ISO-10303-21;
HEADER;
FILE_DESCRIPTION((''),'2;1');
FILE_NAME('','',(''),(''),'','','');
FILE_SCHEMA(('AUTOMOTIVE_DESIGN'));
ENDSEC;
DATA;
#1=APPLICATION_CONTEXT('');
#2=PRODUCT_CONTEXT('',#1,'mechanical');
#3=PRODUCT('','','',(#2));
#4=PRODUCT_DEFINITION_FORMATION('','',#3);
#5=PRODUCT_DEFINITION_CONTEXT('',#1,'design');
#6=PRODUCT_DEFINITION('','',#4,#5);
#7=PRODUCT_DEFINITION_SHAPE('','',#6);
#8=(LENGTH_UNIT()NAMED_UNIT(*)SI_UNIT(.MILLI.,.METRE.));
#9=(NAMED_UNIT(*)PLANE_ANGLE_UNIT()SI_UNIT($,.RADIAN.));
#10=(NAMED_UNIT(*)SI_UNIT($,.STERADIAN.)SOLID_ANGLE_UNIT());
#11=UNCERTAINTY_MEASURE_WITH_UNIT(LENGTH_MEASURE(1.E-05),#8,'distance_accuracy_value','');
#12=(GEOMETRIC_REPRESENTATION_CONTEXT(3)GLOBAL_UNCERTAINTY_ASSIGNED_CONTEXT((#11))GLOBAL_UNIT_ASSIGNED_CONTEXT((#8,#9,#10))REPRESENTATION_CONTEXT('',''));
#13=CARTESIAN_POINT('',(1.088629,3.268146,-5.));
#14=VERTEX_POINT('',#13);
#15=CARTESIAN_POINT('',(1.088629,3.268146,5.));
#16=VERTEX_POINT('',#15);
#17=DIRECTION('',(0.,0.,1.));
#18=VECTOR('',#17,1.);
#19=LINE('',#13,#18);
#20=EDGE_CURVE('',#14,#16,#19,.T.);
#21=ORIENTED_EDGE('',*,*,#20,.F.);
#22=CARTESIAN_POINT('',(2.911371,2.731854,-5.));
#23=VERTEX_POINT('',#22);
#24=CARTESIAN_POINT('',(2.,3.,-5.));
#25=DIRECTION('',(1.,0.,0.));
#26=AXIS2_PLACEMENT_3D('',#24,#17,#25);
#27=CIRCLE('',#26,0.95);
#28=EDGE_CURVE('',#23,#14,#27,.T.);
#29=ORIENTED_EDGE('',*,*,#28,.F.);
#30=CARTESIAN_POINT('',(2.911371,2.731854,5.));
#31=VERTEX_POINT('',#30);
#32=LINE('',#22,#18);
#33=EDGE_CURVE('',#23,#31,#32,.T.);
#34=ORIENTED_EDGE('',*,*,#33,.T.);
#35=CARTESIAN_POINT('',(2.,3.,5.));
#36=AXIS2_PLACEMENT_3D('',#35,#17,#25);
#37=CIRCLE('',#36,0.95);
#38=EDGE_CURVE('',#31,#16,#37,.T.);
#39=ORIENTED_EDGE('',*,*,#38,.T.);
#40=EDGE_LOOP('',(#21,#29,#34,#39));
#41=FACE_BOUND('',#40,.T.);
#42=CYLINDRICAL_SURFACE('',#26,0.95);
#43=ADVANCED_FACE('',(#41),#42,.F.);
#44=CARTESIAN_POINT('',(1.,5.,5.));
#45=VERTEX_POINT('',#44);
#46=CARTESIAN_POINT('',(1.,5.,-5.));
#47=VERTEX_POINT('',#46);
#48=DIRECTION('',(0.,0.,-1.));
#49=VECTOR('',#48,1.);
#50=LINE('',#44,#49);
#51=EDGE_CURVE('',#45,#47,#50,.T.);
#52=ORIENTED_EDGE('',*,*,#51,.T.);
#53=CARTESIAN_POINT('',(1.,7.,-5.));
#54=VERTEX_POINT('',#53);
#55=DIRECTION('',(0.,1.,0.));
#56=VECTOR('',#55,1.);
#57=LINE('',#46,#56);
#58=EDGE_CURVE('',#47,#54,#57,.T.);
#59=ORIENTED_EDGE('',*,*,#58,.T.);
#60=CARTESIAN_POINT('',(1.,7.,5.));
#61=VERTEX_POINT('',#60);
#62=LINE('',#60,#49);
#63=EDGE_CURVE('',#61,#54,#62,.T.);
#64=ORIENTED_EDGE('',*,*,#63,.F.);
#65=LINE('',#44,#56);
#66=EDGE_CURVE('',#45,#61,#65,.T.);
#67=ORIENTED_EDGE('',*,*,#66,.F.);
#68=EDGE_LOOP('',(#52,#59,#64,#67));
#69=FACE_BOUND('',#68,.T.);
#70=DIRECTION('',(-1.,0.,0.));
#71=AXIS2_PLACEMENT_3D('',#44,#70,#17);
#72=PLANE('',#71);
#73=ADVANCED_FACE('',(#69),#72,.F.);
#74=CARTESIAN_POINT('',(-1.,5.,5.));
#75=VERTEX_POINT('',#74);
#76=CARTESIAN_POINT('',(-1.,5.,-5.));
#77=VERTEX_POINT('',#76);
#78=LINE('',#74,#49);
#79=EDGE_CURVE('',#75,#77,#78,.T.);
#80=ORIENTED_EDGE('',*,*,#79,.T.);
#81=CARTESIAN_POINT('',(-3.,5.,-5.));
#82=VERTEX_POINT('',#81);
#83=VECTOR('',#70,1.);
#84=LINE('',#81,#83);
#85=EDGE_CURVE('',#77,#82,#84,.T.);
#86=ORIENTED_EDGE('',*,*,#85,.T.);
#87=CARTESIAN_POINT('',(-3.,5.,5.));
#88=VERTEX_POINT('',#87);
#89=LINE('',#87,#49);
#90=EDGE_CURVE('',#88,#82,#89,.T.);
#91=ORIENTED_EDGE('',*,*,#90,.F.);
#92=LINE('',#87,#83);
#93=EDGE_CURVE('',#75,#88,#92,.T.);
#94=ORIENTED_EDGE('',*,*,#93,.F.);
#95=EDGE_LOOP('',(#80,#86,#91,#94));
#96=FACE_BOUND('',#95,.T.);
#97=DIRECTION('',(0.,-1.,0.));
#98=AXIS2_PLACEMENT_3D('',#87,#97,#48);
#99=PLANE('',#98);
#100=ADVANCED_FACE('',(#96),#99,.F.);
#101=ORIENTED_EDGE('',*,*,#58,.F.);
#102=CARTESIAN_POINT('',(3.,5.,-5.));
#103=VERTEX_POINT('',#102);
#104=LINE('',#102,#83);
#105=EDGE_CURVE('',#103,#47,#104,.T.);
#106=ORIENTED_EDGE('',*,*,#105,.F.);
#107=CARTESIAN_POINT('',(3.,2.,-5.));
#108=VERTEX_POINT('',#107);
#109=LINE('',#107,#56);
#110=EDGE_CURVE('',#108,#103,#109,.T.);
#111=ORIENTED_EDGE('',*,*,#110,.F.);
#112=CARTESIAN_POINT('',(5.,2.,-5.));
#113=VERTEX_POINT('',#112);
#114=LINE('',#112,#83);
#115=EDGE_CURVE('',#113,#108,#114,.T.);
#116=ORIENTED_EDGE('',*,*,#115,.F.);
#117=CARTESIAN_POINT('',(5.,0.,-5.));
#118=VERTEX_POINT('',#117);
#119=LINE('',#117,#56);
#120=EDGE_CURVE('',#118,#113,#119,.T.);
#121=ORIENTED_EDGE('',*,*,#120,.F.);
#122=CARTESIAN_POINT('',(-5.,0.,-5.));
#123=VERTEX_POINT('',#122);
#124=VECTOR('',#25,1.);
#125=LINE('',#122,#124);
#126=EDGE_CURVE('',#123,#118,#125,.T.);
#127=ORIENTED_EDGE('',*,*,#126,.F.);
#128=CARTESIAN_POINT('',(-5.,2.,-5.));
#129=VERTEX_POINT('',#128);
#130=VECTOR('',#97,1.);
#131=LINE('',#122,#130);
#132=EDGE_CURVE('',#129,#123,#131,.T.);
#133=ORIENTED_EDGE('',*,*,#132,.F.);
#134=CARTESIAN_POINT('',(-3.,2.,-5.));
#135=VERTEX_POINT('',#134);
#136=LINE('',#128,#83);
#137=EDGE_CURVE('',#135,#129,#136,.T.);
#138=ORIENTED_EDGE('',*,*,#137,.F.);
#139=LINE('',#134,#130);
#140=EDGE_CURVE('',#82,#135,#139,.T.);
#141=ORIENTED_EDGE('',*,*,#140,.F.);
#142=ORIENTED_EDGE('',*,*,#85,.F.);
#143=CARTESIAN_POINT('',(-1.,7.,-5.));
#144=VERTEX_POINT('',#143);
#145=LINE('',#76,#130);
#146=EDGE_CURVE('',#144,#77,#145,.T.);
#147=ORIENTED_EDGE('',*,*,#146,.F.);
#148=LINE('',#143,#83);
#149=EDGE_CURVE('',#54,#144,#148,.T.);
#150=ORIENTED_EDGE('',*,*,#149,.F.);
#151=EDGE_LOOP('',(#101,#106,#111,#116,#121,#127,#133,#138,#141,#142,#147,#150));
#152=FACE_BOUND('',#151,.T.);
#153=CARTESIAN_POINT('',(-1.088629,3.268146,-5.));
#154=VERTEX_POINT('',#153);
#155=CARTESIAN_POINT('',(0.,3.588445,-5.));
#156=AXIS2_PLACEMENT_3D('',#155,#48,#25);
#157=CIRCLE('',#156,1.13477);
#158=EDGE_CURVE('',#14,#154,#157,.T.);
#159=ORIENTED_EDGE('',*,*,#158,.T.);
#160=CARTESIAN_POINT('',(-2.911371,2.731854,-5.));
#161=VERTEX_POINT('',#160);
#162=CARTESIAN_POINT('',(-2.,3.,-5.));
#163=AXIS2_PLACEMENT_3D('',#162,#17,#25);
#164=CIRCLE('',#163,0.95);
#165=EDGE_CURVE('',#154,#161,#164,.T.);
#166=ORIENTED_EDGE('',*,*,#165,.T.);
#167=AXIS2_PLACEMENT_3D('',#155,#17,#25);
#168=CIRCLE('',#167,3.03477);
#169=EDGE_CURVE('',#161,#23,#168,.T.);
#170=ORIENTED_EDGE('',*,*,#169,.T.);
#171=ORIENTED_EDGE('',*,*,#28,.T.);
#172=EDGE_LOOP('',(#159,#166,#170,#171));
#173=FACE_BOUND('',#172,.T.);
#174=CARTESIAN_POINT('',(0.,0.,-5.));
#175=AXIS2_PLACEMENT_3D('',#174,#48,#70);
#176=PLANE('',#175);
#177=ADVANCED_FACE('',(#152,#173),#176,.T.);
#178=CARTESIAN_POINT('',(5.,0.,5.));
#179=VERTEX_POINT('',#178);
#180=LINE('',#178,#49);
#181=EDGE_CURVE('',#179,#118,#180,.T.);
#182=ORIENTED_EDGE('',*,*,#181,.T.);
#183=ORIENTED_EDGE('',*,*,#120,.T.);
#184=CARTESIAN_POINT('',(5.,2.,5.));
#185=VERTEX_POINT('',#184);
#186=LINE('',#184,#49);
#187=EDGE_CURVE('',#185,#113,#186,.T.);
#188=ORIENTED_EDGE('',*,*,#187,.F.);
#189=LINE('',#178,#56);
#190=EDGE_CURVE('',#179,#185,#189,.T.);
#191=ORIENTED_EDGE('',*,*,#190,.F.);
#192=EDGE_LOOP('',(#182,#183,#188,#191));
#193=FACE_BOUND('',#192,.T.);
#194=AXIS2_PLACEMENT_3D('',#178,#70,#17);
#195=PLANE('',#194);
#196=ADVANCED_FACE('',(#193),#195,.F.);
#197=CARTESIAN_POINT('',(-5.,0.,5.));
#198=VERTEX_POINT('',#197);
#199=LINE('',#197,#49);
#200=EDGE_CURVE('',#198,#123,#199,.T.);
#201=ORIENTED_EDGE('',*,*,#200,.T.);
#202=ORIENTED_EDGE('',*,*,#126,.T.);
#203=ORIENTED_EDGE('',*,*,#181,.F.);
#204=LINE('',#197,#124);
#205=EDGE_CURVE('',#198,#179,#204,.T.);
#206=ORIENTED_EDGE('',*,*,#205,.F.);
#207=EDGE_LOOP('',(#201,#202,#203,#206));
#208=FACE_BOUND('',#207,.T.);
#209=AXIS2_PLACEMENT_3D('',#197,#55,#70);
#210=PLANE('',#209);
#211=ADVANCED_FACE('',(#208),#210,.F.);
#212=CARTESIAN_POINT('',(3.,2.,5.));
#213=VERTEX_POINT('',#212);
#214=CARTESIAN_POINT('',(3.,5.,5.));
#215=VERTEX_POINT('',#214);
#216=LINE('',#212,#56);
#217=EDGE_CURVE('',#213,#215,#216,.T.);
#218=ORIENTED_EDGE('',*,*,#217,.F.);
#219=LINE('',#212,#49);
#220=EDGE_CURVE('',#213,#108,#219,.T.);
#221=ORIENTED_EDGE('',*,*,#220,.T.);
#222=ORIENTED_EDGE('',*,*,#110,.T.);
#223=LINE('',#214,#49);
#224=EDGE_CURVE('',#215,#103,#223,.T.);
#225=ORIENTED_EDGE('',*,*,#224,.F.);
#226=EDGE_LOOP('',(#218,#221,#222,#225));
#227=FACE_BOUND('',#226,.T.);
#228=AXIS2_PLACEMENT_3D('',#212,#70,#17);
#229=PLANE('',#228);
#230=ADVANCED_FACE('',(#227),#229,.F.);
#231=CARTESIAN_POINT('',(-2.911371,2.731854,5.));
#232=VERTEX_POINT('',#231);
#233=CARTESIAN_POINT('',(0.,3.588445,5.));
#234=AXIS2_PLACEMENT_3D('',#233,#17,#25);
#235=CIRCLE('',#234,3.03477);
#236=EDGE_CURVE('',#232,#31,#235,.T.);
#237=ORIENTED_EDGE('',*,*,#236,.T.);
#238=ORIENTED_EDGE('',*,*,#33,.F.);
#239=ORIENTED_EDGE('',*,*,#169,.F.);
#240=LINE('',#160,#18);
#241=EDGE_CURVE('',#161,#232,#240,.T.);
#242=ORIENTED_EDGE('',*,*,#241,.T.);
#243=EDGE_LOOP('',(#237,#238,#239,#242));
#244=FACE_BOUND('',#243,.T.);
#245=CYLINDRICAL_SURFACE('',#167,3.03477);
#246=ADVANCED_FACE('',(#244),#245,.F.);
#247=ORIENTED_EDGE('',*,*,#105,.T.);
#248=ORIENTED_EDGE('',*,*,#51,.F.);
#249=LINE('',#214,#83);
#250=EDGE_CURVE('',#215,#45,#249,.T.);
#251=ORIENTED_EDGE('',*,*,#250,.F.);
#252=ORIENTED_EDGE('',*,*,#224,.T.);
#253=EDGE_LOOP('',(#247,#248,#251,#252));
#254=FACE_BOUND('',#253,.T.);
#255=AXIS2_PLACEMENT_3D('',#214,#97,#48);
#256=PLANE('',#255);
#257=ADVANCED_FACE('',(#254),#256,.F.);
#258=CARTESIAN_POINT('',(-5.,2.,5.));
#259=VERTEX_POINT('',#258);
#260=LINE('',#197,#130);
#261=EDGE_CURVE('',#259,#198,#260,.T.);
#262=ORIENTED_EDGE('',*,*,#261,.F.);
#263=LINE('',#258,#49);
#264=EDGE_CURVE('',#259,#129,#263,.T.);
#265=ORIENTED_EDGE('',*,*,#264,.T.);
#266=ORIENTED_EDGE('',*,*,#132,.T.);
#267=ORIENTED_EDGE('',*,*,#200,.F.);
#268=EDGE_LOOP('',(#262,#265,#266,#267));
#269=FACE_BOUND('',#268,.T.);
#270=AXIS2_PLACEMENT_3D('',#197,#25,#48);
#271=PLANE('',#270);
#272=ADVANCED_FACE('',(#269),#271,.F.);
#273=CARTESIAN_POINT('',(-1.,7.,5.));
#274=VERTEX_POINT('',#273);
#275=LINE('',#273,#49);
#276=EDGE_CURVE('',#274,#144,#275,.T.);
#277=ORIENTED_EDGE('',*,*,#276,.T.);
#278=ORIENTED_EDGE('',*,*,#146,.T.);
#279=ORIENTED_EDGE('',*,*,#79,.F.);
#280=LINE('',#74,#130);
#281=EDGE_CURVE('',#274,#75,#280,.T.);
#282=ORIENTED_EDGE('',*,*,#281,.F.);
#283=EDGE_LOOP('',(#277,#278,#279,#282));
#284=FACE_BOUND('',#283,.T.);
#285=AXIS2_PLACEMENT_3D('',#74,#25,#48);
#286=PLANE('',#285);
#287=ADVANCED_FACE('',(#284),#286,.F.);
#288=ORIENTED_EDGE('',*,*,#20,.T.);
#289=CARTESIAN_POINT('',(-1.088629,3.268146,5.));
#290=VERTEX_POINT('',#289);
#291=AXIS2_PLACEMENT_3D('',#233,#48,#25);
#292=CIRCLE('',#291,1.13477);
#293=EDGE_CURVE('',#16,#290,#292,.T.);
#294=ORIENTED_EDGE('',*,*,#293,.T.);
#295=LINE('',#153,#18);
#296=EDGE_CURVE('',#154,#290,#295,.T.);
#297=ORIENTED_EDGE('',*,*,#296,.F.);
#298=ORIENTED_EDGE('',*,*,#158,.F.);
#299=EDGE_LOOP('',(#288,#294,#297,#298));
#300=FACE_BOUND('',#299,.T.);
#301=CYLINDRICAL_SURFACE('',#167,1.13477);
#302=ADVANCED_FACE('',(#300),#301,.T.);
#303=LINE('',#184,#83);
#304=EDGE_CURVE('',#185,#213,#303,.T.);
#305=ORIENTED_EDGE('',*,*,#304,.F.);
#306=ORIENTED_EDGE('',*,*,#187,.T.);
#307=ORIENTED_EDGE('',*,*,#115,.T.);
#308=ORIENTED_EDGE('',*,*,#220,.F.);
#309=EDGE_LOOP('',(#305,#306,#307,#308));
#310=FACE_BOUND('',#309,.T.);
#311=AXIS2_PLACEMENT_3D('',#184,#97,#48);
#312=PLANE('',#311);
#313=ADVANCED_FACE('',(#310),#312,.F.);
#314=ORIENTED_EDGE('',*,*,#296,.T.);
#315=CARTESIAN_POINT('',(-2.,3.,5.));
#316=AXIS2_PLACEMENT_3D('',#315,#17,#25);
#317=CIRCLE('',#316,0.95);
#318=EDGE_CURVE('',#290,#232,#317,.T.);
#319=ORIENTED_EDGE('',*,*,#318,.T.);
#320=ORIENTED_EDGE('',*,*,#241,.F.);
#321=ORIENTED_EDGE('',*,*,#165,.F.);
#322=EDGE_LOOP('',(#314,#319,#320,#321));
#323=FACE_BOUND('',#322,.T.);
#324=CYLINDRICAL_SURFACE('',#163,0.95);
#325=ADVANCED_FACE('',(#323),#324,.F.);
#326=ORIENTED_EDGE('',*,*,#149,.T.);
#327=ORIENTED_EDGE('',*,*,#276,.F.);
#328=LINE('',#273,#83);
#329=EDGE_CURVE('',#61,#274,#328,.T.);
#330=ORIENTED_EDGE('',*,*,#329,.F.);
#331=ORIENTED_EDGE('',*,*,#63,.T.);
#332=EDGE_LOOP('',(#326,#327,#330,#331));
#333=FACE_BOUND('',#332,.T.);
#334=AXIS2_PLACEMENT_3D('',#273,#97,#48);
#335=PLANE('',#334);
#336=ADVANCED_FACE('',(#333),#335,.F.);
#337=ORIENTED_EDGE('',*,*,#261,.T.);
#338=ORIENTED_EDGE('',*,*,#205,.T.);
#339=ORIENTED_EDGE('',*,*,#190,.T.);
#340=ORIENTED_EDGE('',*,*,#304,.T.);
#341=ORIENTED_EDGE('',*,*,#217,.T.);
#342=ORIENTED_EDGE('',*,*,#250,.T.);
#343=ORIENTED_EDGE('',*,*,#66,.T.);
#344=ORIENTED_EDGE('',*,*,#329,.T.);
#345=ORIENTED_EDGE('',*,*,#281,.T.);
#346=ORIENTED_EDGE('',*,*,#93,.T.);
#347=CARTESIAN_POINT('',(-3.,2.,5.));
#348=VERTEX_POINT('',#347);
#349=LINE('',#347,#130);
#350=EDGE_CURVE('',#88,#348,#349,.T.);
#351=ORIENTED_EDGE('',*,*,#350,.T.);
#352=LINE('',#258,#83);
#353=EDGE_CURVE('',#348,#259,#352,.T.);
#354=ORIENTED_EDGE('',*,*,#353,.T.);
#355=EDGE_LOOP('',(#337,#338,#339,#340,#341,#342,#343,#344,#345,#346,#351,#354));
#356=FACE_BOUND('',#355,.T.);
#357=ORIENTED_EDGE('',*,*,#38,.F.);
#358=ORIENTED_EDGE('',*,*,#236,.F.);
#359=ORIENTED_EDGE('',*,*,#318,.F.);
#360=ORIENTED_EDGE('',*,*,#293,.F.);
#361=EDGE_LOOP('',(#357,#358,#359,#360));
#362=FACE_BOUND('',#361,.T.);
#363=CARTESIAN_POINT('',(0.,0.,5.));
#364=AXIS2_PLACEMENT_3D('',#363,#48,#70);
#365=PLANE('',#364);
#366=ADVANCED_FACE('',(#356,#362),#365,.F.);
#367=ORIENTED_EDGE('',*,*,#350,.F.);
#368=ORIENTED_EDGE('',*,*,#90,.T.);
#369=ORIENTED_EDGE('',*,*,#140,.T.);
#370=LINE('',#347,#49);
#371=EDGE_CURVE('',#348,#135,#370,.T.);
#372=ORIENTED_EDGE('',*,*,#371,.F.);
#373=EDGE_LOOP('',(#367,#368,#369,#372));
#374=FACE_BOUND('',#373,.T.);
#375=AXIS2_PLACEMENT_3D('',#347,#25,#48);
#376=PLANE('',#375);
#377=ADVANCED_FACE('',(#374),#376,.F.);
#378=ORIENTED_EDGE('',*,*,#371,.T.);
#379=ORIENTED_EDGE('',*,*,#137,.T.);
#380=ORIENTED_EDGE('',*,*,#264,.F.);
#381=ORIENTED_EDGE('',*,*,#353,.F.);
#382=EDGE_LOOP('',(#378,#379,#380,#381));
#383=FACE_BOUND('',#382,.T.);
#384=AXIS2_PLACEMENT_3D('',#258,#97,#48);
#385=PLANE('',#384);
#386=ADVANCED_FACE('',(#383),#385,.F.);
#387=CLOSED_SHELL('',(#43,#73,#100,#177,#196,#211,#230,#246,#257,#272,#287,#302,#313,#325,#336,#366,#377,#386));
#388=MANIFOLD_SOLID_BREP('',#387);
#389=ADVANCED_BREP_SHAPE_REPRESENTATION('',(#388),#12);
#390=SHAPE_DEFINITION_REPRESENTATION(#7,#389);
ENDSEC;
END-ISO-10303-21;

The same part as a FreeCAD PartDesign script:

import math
import FreeCAD as App
import Part
import Sketcher
from FreeCAD import Vector

doc = App.newDocument("Part")
body = doc.addObject("PartDesign::Body", "Body")

sketch1 = doc.addObject("Sketcher::SketchObject", "Sketch")
body.addObject(sketch1)
sketch1.AttachmentSupport = (doc.XY_Plane, [""])
sketch1.MapMode = "FlatFace"
sketch1.addGeometry(Part.LineSegment(Vector(-5, 0, 0), Vector(5, 0, 0)), False)
sketch1.addGeometry(Part.LineSegment(Vector(5, 0, 0), Vector(5, 2, 0)), False)
sketch1.addGeometry(Part.LineSegment(Vector(5, 2, 0), Vector(3, 2, 0)), False)
sketch1.addGeometry(Part.LineSegment(Vector(3, 2, 0), Vector(3, 5, 0)), False)
sketch1.addGeometry(Part.LineSegment(Vector(3, 5, 0), Vector(1, 5, 0)), False)
sketch1.addGeometry(Part.LineSegment(Vector(1, 5, 0), Vector(1, 7, 0)), False)
sketch1.addGeometry(Part.LineSegment(Vector(1, 7, 0), Vector(-1, 7, 0)), False)
sketch1.addGeometry(Part.LineSegment(Vector(-1, 7, 0), Vector(-1, 5, 0)), False)
sketch1.addGeometry(Part.LineSegment(Vector(-1, 5, 0), Vector(-3, 5, 0)), False)
sketch1.addGeometry(Part.LineSegment(Vector(-3, 5, 0), Vector(-3, 2, 0)), False)
sketch1.addGeometry(Part.LineSegment(Vector(-3, 2, 0), Vector(-5, 2, 0)), False)
sketch1.addGeometry(Part.LineSegment(Vector(-5, 2, 0), Vector(-5, 0, 0)), False)
sketch1.addConstraint(Sketcher.Constraint("Coincident", 0, 2, 1, 1))
sketch1.addConstraint(Sketcher.Constraint("Coincident", 1, 2, 2, 1))
sketch1.addConstraint(Sketcher.Constraint("Coincident", 2, 2, 3, 1))
sketch1.addConstraint(Sketcher.Constraint("Coincident", 3, 2, 4, 1))
sketch1.addConstraint(Sketcher.Constraint("Coincident", 4, 2, 5, 1))
sketch1.addConstraint(Sketcher.Constraint("Coincident", 5, 2, 6, 1))
sketch1.addConstraint(Sketcher.Constraint("Coincident", 6, 2, 7, 1))
sketch1.addConstraint(Sketcher.Constraint("Coincident", 7, 2, 8, 1))
sketch1.addConstraint(Sketcher.Constraint("Coincident", 8, 2, 9, 1))
sketch1.addConstraint(Sketcher.Constraint("Coincident", 9, 2, 10, 1))
sketch1.addConstraint(Sketcher.Constraint("Coincident", 10, 2, 11, 1))
sketch1.addConstraint(Sketcher.Constraint("Coincident", 11, 2, 0, 1))
sketch1.addConstraint(Sketcher.Constraint("Horizontal", 0))
sketch1.addConstraint(Sketcher.Constraint("Vertical", 1))
sketch1.addConstraint(Sketcher.Constraint("Horizontal", 2))
sketch1.addConstraint(Sketcher.Constraint("Vertical", 3))
sketch1.addConstraint(Sketcher.Constraint("Horizontal", 4))
sketch1.addConstraint(Sketcher.Constraint("Vertical", 5))
sketch1.addConstraint(Sketcher.Constraint("Horizontal", 6))
sketch1.addConstraint(Sketcher.Constraint("Vertical", 7))
sketch1.addConstraint(Sketcher.Constraint("Horizontal", 8))
sketch1.addConstraint(Sketcher.Constraint("Vertical", 9))
sketch1.addConstraint(Sketcher.Constraint("Horizontal", 10))
sketch1.addConstraint(Sketcher.Constraint("Vertical", 11))
sketch1.addConstraint(Sketcher.Constraint("Symmetric", 0, 2, 11, 2, -1, 1))
sketch1.addConstraint(Sketcher.Constraint("Symmetric", 4, 2, 7, 2, -2))
sketch1.addConstraint(Sketcher.Constraint("Symmetric", 2, 2, 9, 2, -2))
sketch1.addConstraint(Sketcher.Constraint("Equal", 2, 4))
sketch1.addConstraint(Sketcher.Constraint("Equal", 4, 6))
sketch1.addConstraint(Sketcher.Constraint("Equal", 10, 1))
sketch1.addConstraint(Sketcher.Constraint("Equal", 1, 5))
sketch1.addConstraint(Sketcher.Constraint("DistanceX", 0, 1, 0, 2, 10.0))
sketch1.addConstraint(Sketcher.Constraint("DistanceY", 3, 1, 3, 2, 3.0))
pad1 = doc.addObject("PartDesign::Pad", "Pad")
body.addObject(pad1)
pad1.Profile = sketch1
pad1.Length = 10
pad1.Midplane = True

sketch2 = doc.addObject("Sketcher::SketchObject", "Sketch001")
body.addObject(sketch2)
sketch2.AttachmentSupport = (doc.XY_Plane, [""])
sketch2.MapMode = "FlatFace"
sketch2.AttachmentOffset = App.Placement(Vector(0, 0, 5), App.Rotation())
sketch2.addGeometry(Part.ArcOfCircle(Part.Circle(Vector(0, 3.6, 0), Vector(0, 0, 1), 3), math.radians(-164), math.radians(-16)), False)
sketch2.addGeometry(Part.ArcOfCircle(Part.Circle(Vector(2, 3, 0), Vector(0, 0, 1), 0.9), math.radians(-16), math.radians(164)), False)
sketch2.addGeometry(Part.ArcOfCircle(Part.Circle(Vector(0, 3.6, 0), Vector(0, 0, 1), 1.1), math.radians(-164), math.radians(-16)), False)
sketch2.addGeometry(Part.ArcOfCircle(Part.Circle(Vector(-2, 3, 0), Vector(0, 0, 1), 0.9), math.radians(16), math.radians(196)), False)
sketch2.addConstraint(Sketcher.Constraint("Tangent", 0, 2, 1, 1))
sketch2.addConstraint(Sketcher.Constraint("Tangent", 1, 2, 2, 2))
sketch2.addConstraint(Sketcher.Constraint("Tangent", 2, 1, 3, 1))
sketch2.addConstraint(Sketcher.Constraint("Tangent", 3, 2, 0, 1))
sketch2.addConstraint(Sketcher.Constraint("Coincident", 2, 3, 0, 3))
sketch2.addConstraint(Sketcher.Constraint("Symmetric", 1, 3, 3, 3, -2))
sketch2.addConstraint(Sketcher.Constraint("Radius", 1, 0.95))
sketch2.addConstraint(Sketcher.Constraint("DistanceX", -1, 1, 1, 3, 2.0))
sketch2.addConstraint(Sketcher.Constraint("DistanceY", -1, 1, 1, 3, 3.0))
sketch2.addConstraint(Sketcher.Constraint("Radius", 0, 3.03477))
pocket1 = doc.addObject("PartDesign::Pocket", "Pocket")
body.addObject(pocket1)
pocket1.Profile = sketch2
pocket1.Length = 10

doc.recompute()
